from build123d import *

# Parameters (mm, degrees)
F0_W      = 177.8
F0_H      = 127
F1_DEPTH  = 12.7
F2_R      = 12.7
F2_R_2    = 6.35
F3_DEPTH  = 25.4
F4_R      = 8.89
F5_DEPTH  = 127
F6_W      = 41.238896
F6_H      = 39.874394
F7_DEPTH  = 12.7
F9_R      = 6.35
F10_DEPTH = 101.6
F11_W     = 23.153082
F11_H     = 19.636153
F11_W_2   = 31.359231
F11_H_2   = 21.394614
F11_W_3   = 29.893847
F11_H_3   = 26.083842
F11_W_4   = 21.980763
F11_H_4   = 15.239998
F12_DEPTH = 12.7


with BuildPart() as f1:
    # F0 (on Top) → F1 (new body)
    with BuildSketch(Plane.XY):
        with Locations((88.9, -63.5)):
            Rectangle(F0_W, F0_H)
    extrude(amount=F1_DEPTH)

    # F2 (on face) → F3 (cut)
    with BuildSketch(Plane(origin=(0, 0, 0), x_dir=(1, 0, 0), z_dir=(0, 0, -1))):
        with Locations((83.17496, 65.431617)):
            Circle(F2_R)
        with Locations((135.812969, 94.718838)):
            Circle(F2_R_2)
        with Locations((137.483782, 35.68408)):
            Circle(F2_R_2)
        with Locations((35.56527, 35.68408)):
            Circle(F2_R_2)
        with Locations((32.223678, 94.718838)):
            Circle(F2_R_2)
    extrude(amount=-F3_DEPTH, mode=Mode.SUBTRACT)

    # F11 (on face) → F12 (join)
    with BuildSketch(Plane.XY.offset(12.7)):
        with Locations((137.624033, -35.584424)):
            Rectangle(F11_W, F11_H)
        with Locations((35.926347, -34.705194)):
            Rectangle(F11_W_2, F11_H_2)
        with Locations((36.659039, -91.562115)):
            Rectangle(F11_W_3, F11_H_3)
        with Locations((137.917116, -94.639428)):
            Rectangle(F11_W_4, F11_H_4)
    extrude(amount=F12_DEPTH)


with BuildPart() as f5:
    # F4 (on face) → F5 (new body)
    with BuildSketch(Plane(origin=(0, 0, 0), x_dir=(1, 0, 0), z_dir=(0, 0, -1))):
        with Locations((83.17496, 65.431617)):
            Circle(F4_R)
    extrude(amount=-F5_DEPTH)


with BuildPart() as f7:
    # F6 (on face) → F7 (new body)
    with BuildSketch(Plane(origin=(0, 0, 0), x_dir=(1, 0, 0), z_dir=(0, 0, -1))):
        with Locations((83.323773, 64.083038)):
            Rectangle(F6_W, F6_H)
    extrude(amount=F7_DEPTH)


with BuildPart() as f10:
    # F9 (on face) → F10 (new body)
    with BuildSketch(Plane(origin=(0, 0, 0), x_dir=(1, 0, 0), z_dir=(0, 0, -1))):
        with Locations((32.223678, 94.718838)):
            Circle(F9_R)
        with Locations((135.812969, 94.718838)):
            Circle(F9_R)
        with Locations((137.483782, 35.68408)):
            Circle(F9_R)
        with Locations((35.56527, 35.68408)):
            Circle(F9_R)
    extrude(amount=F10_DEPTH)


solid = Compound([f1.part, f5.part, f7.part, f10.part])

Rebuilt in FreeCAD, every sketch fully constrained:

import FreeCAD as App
import Part
import Sketcher
from FreeCAD import Vector
Q = App.Units.Quantity


def add_polygon(sketch, points):
    """Adds a closed chain of lines whose ends are joined by coincident constraints."""
    first, n = sketch.GeometryCount, len(points)
    for a, b in zip(points, points[1:] + points[:1]):
        sketch.addGeometry(Part.LineSegment(App.Vector(*a, 0), App.Vector(*b, 0)), False)
    for i in range(n):
        sketch.addConstraint(Sketcher.Constraint("Coincident", first + i, 2, first + (i + 1) % n, 1))

doc = App.newDocument("Part")
body = doc.addObject("PartDesign::Body", "Body")

sketch1 = body.newObject("Sketcher::SketchObject", "Sketch")
sketch1.AttachmentSupport = (doc.getObject("XY_Plane"), [""])
sketch1.MapMode = "FlatFace"
add_polygon(sketch1, [(0, 0), (0, -127), (178, -127), (178, 0)])
sketch1.addConstraint([
    Sketcher.Constraint("Vertical", 0),
    Sketcher.Constraint("Horizontal", 1),
    Sketcher.Constraint("Vertical", 2),
    Sketcher.Constraint("Horizontal", 3),
    Sketcher.Constraint("Coincident", 3, 2, -1, 1),
    Sketcher.Constraint("DistanceX", 1, 1, 1, 2, Q("7 in")),
    Sketcher.Constraint("DistanceY", 0, 2, 0, 1, Q("5 in")),
])
pad1 = body.newObject("PartDesign::Pad", "Pad")
pad1.Profile = sketch1
pad1.Length = Q("0.5 in")

sketch2 = body.newObject("Sketcher::SketchObject", "Sketch001")
sketch2.AttachmentSupport = (doc.getObject("XY_Plane"), [""])
sketch2.MapMode = "FlatFace"
sketch2.addGeometry([
    Part.Circle(Vector(83, -65, 0), Vector(0, 0, 1), 13),
    Part.Circle(Vector(136, -95, 0), Vector(0, 0, 1), 6),
    Part.Circle(Vector(137, -36, 0), Vector(0, 0, 1), 6),
    Part.Circle(Vector(36, -36, 0), Vector(0, 0, 1), 6),
    Part.Circle(Vector(32, -95, 0), Vector(0, 0, 1), 6),
], False)
sketch2.addConstraint([
    Sketcher.Constraint("Equal", 1, 2),
    Sketcher.Constraint("Equal", 2, 3),
    Sketcher.Constraint("Equal", 3, 4),
    Sketcher.Constraint("Horizontal", 2, 3, 3, 3),
    Sketcher.Constraint("Horizontal", 1, 3, 4, 3),
    Sketcher.Constraint("Diameter", 0, Q("1 in")),
    Sketcher.Constraint("Diameter", 1, Q("0.5 in")),
    Sketcher.Constraint("DistanceX", 3, 3, 1, 3, 100.247699),
    Sketcher.Constraint("DistanceX", -1, 1, 0, 3, 83.17496),
    Sketcher.Constraint("DistanceX", -1, 1, 1, 3, 135.812969),
    Sketcher.Constraint("DistanceY", 1, 3, -1, 1, 94.718838),
    Sketcher.Constraint("DistanceX", -1, 1, 2, 3, 137.483782),
    Sketcher.Constraint("DistanceY", 2, 3, -1, 1, 35.68408),
    Sketcher.Constraint("DistanceY", 1, 3, 0, 3, 29.287221),
    Sketcher.Constraint("DistanceX", 4, 3, 3, 3, 3.341592),
])
pocket1 = body.newObject("PartDesign::Pocket", "Pocket")
pocket1.Profile = sketch2
pocket1.Length = Q("1 in")
pocket1.Reversed = True

sketch3 = body.newObject("Sketcher::SketchObject", "Sketch002")
sketch3.AttachmentSupport = (doc.getObject("XY_Plane"), [""])
sketch3.MapMode = "FlatFace"
sketch3.AttachmentOffset = App.Placement(Vector(0, 0, 0.5 * 25.4), App.Rotation())
add_polygon(sketch3, [(126, -26), (126, -45), (149, -45), (149, -26)])
add_polygon(sketch3, [(20, -24), (20, -45), (52, -45), (52, -24)])
add_polygon(sketch3, [(22, -79), (22, -105), (52, -105), (52, -79)])
add_polygon(sketch3, [(127, -87), (127, -102), (149, -102), (149, -87)])
sketch3.addConstraint([
    Sketcher.Constraint("Vertical", 0),
    Sketcher.Constraint("Horizontal", 1),
    Sketcher.Constraint("Vertical", 2),
    Sketcher.Constraint("Horizontal", 3),
    Sketcher.Constraint("Vertical", 4),
    Sketcher.Constraint("Horizontal", 5),
    Sketcher.Constraint("Vertical", 6),
    Sketcher.Constraint("Horizontal", 7),
    Sketcher.Constraint("Vertical", 8),
    Sketcher.Constraint("Horizontal", 9),
    Sketcher.Constraint("Vertical", 10),
    Sketcher.Constraint("Horizontal", 11),
    Sketcher.Constraint("Vertical", 12),
    Sketcher.Constraint("Horizontal", 13),
    Sketcher.Constraint("Vertical", 14),
    Sketcher.Constraint("Horizontal", 15),
    Sketcher.Constraint("Horizontal", 1, 2, 4, 2),
    Sketcher.Constraint("Vertical", 6, 2, 9, 2),
    Sketcher.Constraint("DistanceY", 12, 2, 12, 1, Q("0.5999999 in")),
    Sketcher.Constraint("DistanceY", 0, 2, -1, 1, Q("1.7875 in")),
    Sketcher.Constraint("DistanceX", -1, 1, 13, 2, Q("5.8624999 in")),
    Sketcher.Constraint("DistanceX", 1, 1, 1, 2, 23.153082),
    Sketcher.Constraint("DistanceX", 5, 1, 5, 2, 31.359231),
    Sketcher.Constraint("DistanceY", 8, 2, 8, 1, 26.083842),
    Sketcher.Constraint("DistanceX", 9, 1, 9, 2, 29.893847),
    Sketcher.Constraint("DistanceX", 13, 1, 13, 2, 21.980763),
    Sketcher.Constraint("DistanceY", 0, 2, 0, 1, 19.636153),
    Sketcher.Constraint("DistanceY", 4, 2, 4, 1, 21.394614),
    Sketcher.Constraint("DistanceX", -1, 1, 4, 2, 20.246731),
    Sketcher.Constraint("DistanceY", 14, 2, -1, 1, 87.019429),
    Sketcher.Constraint("DistanceX", 4, 2, 0, 2, 105.800761),
    Sketcher.Constraint("DistanceY", 8, 2, 7, 2, 80.596149),
])
pad2 = body.newObject("PartDesign::Pad", "Pad001")
pad2.Profile = sketch3
pad2.Length = Q("0.5 in")
body2 = doc.addObject("PartDesign::Body", "Body001")

sketch4 = body2.newObject("Sketcher::SketchObject", "Sketch003")
sketch4.AttachmentSupport = (doc.getObject("XY_Plane001"), [""])
sketch4.MapMode = "FlatFace"
sketch4.addGeometry(Part.Circle(Vector(83, -65, 0), Vector(0, 0, 1), 9), False)
sketch4.addConstraint([
    Sketcher.Constraint("Diameter", 0, Q("0.7 in")),
    Sketcher.Constraint("DistanceX", -1, 1, 0, 3, 83.17496),
    Sketcher.Constraint("DistanceY", 0, 3, -1, 1, 65.431617),
])
pad3 = body2.newObject("PartDesign::Pad", "Pad002")
pad3.Profile = sketch4
pad3.Length = Q("5 in")
body3 = doc.addObject("PartDesign::Body", "Body002")

sketch5 = body3.newObject("Sketcher::SketchObject", "Sketch004")
sketch5.AttachmentSupport = (doc.getObject("XY_Plane002"), [""])
sketch5.MapMode = "FlatFace"
add_polygon(sketch5, [(63, -84), (63, -44), (104, -44), (104, -84)])
sketch5.addConstraint([
    Sketcher.Constraint("Vertical", 0),
    Sketcher.Constraint("Horizontal", 1),
    Sketcher.Constraint("Vertical", 2),
    Sketcher.Constraint("Horizontal", 3),
    Sketcher.Constraint("DistanceX", 1, 1, 1, 2, 41.238896),
    Sketcher.Constraint("DistanceY", 0, 1, 0, 2, 39.874394),
    Sketcher.Constraint("DistanceY", 0, 2, -1, 1, 44.145841),
    Sketcher.Constraint("DistanceX", -1, 1, 1, 2, 103.943221),
])
pad4 = body3.newObject("PartDesign::Pad", "Pad003")
pad4.Profile = sketch5
pad4.Length = Q("0.5 in")
pad4.Reversed = True
body4 = doc.addObject("PartDesign::Body", "Body003")
body4.AllowCompound = True

sketch6 = body4.newObject("Sketcher::SketchObject", "Sketch005")
sketch6.AttachmentSupport = (doc.getObject("XY_Plane003"), [""])
sketch6.MapMode = "FlatFace"
sketch6.addGeometry([
    Part.Circle(Vector(32, -95, 0), Vector(0, 0, 1), 6),
    Part.Circle(Vector(136, -95, 0), Vector(0, 0, 1), 6),
    Part.Circle(Vector(137, -36, 0), Vector(0, 0, 1), 6),
    Part.Circle(Vector(36, -36, 0), Vector(0, 0, 1), 6),
], False)
sketch6.addConstraint([
    Sketcher.Constraint("Equal", 0, 1),
    Sketcher.Constraint("Equal", 1, 2),
    Sketcher.Constraint("Equal", 2, 3),
    Sketcher.Constraint("Horizontal", 0, 3, 1, 3),
    Sketcher.Constraint("Horizontal", 2, 3, 3, 3),
    Sketcher.Constraint("Diameter", 0, Q("0.5 in")),
    Sketcher.Constraint("DistanceX", 3, 3, 1, 3, 100.247699),
    Sketcher.Constraint("DistanceY", 0, 3, -1, 1, 94.718838),
    Sketcher.Constraint("DistanceX", -1, 1, 1, 3, 135.812969),
    Sketcher.Constraint("DistanceX", -1, 1, 2, 3, 137.483782),
    Sketcher.Constraint("DistanceY", 2, 3, -1, 1, 35.68408),
    Sketcher.Constraint("DistanceX", 0, 3, 1, 3, 103.589291),
])
pad5 = body4.newObject("PartDesign::Pad", "Pad004")
pad5.Profile = sketch6
pad5.Length = Q("4 in")
pad5.Reversed = True

doc.recompute()
